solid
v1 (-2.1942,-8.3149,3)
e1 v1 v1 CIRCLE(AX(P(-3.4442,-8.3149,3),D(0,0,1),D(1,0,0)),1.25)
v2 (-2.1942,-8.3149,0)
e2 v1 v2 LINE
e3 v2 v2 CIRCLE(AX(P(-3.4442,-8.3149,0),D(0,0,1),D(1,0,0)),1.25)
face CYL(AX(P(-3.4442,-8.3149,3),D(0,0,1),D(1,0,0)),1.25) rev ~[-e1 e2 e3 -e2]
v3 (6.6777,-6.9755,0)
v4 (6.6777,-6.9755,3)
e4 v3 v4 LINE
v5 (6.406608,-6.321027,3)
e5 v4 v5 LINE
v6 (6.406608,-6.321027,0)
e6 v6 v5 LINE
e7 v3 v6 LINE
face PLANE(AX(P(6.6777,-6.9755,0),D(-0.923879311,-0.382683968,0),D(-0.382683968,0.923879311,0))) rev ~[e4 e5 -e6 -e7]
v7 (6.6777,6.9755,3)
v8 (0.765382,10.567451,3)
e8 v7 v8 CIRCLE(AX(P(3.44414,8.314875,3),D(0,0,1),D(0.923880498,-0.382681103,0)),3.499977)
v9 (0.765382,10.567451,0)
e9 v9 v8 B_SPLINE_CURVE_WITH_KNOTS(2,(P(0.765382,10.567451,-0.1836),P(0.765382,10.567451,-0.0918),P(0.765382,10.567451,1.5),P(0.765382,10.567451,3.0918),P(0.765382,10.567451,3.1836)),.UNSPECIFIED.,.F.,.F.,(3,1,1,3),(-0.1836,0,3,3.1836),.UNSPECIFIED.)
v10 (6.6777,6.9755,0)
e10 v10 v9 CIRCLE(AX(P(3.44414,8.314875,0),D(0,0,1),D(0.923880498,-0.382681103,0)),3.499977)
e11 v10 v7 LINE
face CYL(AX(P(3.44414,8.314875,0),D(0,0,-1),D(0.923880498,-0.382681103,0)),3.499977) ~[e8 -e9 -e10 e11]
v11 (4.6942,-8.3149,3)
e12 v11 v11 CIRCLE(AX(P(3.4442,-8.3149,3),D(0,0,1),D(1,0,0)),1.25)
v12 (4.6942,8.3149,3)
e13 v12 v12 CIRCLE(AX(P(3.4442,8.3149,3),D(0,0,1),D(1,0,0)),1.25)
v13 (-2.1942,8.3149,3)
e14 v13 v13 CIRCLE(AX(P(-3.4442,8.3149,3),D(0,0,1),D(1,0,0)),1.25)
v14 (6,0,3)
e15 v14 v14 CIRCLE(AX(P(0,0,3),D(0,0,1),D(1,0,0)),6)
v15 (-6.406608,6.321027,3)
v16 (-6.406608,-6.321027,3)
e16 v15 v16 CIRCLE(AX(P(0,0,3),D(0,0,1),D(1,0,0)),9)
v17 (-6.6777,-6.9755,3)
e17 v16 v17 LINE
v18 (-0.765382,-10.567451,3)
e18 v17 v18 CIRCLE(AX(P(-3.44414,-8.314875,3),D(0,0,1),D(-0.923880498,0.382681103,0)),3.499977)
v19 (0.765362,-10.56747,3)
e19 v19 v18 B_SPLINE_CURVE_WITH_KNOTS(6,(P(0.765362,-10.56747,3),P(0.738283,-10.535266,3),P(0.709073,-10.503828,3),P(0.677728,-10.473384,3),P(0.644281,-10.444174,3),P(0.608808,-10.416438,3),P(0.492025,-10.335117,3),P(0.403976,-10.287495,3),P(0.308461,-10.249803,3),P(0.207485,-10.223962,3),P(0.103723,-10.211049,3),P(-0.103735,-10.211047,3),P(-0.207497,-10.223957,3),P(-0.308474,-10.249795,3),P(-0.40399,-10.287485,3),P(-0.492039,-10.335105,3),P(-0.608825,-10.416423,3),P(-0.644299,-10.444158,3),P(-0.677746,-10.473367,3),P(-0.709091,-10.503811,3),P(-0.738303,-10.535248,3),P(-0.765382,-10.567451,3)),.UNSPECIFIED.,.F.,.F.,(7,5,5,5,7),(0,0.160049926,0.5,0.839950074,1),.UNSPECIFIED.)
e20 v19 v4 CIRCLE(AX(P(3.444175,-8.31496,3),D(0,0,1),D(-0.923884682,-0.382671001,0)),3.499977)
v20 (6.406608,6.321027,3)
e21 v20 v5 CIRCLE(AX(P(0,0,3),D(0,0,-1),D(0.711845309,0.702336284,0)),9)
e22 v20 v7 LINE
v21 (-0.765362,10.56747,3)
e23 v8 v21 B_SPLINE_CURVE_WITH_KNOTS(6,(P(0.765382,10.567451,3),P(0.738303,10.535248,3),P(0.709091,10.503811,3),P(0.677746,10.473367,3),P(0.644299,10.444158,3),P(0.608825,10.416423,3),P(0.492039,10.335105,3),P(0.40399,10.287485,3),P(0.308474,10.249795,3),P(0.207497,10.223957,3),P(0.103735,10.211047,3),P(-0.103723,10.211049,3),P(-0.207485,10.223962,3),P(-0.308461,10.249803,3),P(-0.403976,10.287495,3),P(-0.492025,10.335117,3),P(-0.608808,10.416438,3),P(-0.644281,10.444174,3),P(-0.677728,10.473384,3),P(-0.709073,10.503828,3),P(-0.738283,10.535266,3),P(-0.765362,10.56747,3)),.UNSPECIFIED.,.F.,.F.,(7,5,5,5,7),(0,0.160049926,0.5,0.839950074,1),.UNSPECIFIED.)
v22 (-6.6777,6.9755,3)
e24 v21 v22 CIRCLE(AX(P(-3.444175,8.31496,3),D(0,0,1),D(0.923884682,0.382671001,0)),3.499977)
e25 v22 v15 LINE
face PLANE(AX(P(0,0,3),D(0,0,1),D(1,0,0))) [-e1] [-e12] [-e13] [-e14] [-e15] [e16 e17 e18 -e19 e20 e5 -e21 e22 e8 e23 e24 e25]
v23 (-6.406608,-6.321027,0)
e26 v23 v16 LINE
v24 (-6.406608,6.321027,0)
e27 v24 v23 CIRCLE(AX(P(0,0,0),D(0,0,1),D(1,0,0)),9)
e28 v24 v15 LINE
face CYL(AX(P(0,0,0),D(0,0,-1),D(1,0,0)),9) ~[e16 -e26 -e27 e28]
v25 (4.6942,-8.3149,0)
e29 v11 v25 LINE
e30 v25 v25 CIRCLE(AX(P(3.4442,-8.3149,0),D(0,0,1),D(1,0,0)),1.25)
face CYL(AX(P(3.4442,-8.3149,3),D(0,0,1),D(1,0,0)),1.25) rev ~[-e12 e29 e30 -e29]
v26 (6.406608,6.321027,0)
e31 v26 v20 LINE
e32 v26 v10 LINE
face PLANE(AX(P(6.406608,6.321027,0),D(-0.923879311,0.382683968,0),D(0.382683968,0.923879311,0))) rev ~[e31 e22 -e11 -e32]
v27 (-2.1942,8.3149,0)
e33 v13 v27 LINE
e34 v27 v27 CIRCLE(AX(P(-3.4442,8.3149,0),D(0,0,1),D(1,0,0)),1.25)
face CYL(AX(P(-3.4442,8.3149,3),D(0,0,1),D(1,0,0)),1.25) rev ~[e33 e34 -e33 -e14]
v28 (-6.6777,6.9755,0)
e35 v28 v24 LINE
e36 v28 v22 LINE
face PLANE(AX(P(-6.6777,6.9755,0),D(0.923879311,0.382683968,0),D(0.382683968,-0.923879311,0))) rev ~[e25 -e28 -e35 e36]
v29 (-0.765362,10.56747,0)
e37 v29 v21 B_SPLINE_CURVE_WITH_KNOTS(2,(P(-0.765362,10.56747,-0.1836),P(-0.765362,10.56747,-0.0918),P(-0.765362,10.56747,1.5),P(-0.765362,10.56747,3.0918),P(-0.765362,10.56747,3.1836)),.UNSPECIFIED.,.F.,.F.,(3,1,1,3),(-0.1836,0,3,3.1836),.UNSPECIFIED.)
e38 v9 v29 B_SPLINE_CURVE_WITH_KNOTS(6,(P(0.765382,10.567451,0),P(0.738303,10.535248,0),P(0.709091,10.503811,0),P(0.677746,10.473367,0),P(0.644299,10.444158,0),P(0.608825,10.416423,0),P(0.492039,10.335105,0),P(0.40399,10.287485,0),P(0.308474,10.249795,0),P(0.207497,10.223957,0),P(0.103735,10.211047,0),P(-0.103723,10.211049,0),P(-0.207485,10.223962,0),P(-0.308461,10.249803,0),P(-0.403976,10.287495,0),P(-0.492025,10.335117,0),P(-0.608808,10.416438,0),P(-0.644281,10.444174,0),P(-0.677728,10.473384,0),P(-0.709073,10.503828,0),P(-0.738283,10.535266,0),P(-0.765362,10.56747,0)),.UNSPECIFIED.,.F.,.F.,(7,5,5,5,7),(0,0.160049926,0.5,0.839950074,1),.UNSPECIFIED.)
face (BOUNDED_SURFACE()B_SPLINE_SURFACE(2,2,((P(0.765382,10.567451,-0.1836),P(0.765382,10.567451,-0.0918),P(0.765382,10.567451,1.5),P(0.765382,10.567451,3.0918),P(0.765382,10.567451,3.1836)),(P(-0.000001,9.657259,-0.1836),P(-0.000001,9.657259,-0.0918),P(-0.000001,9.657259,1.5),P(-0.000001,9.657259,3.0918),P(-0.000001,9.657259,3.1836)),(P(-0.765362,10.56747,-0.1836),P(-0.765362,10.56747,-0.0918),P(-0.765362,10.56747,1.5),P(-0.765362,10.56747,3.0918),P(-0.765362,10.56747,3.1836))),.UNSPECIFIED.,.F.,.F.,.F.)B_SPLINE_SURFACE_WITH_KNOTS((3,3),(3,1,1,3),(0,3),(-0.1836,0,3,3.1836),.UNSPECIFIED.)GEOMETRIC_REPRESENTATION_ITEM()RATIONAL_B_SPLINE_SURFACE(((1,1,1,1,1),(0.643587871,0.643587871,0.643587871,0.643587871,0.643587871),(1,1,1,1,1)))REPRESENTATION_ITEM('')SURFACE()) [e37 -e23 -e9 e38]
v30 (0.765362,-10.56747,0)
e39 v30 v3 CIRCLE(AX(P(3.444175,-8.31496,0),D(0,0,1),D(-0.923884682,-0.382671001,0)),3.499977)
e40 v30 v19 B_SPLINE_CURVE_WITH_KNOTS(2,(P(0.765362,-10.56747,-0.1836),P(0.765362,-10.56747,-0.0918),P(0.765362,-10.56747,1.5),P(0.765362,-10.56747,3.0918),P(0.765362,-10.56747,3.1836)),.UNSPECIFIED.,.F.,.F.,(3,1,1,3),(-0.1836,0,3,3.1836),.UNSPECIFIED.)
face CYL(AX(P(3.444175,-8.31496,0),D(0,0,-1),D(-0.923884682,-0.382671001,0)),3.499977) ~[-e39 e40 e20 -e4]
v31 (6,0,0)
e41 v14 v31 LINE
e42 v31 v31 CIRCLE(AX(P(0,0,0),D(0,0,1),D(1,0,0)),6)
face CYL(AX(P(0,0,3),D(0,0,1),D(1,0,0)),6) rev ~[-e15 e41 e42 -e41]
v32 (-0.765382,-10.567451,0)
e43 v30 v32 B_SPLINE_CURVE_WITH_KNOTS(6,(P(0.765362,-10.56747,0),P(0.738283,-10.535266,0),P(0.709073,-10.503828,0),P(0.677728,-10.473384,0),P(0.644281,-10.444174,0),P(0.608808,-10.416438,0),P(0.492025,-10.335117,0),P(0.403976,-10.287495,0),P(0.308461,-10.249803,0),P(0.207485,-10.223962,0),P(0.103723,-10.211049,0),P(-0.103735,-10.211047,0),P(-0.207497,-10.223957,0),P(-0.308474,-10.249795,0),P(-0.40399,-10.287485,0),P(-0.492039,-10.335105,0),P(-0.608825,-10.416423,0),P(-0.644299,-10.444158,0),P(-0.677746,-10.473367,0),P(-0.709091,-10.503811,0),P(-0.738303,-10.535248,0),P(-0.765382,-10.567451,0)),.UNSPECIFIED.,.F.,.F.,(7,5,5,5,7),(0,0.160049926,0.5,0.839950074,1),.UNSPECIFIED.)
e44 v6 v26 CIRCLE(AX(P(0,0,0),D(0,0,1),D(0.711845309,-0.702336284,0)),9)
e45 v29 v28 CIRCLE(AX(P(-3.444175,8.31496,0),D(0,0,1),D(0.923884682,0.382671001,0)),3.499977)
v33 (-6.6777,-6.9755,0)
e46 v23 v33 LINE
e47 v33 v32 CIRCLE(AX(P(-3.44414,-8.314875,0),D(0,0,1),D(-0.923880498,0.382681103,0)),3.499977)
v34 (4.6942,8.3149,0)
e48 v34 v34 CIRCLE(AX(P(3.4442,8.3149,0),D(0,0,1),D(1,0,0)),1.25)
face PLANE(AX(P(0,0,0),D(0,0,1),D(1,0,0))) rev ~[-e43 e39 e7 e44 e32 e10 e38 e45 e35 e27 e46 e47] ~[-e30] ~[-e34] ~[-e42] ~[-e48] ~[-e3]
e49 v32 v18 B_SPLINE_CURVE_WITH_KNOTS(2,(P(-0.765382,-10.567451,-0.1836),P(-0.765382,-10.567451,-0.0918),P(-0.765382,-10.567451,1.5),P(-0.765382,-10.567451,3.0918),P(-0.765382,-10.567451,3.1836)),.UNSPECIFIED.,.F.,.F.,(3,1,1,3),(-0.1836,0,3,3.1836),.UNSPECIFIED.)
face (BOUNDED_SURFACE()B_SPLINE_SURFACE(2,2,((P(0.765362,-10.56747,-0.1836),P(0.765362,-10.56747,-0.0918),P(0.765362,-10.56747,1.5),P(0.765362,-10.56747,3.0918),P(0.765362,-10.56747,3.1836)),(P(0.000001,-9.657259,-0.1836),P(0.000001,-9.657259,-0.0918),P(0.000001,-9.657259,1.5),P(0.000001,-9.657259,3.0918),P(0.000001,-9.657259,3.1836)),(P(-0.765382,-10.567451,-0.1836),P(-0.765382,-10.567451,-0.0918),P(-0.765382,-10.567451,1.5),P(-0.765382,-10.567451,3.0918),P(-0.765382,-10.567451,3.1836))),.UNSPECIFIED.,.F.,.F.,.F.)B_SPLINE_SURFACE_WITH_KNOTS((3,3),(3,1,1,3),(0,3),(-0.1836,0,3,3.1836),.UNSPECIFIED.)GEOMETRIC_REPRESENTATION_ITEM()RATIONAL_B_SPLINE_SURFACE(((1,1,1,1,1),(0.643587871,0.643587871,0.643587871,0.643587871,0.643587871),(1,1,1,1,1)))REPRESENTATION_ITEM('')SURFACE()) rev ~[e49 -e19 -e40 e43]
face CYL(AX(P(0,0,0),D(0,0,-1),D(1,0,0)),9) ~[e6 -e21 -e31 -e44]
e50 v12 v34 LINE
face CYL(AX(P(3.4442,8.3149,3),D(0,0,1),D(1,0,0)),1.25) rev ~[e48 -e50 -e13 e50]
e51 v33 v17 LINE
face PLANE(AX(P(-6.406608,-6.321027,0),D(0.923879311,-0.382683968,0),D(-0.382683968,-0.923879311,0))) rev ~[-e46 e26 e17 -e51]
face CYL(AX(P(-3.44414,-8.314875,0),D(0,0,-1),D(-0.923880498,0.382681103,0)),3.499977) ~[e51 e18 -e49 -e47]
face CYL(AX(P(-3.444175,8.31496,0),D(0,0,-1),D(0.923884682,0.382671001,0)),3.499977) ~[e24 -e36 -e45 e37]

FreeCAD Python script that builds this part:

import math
import FreeCAD as App
import Part
import Sketcher

V = App.Vector
Q = App.Units.Quantity


def edges_at(feature, points):
    """Names of the edges that pass closest to the given points."""
    edges = feature.Shape.Edges
    near = lambda p: min(range(len(edges)), key=lambda i: edges[i].distToShape(Part.Vertex(*p))[0])
    return sorted({f"Edge{near(p) + 1}" for p in points})

doc = App.newDocument("Part")
body = doc.addObject("PartDesign::Body", "Body")

# Sketch on XY plane
sketch1 = doc.addObject("Sketcher::SketchObject", "Sketch")
body.addObject(sketch1)
sketch1.AttachmentSupport = (doc.XY_Plane, [""])
sketch1.MapMode = "FlatFace"
sketch1.addGeometry([
    Part.ArcOfCircle(Part.Circle(V(0, 0, 0), V(0, 0, 1), 9), math.radians(-45), math.radians(45)),  # 0
    Part.LineSegment(V(6.4, 6.3, 0), V(6.7, 7, 0)),  # 1
    Part.ArcOfCircle(Part.Circle(V(3.4, 8.3, 0), V(0, 0, 1), 3.5), math.radians(-23), math.radians(158)),  # 2
    Part.LineSegment(V(0.2, 9.7, 0), V(0, 9.1, 0)),  # 3
    Part.LineSegment(V(0, 9.1, 0), V(-0.2, 9.7, 0)),  # 4
    Part.ArcOfCircle(Part.Circle(V(-3.4, 8.3, 0), V(0, 0, 1), 3.5), math.radians(22), math.radians(203)),  # 5
    Part.LineSegment(V(-6.7, 7, 0), V(-6.4, 6.3, 0)),  # 6
    Part.ArcOfCircle(Part.Circle(V(0, 0, 0), V(0, 0, 1), 9), math.radians(135), math.radians(225)),  # 7
    Part.LineSegment(V(-6.4, -6.3, 0), V(-6.7, -7, 0)),  # 8
    Part.ArcOfCircle(Part.Circle(V(-3.4, -8.3, 0), V(0, 0, 1), 3.5), math.radians(157), math.radians(338)),  # 9
    Part.LineSegment(V(-0.2, -9.7, 0), V(0, -9.1, 0)),  # 10
    Part.LineSegment(V(0, -9.1, 0), V(0.2, -9.7, 0)),  # 11
    Part.ArcOfCircle(Part.Circle(V(3.4, -8.3, 0), V(0, 0, 1), 3.5), math.radians(-158), math.radians(23)),  # 12
    Part.LineSegment(V(6.7, -7, 0), V(6.4, -6.3, 0)),  # 13
], False)
sketch1.addConstraint([
    Sketcher.Constraint("Coincident", 0, 2, 1, 1),
    Sketcher.Constraint("Tangent", 1, 2, 2, 1),
    Sketcher.Constraint("Tangent", 2, 2, 3, 1),
    Sketcher.Constraint("Coincident", 3, 2, 4, 1),
    Sketcher.Constraint("Tangent", 4, 2, 5, 1),
    Sketcher.Constraint("Tangent", 5, 2, 6, 1),
    Sketcher.Constraint("Coincident", 6, 2, 7, 1),
    Sketcher.Constraint("Coincident", 7, 2, 8, 1),
    Sketcher.Constraint("Tangent", 8, 2, 9, 1),
    Sketcher.Constraint("Tangent", 9, 2, 10, 1),
    Sketcher.Constraint("Coincident", 10, 2, 11, 1),
    Sketcher.Constraint("Tangent", 11, 2, 12, 1),
    Sketcher.Constraint("Tangent", 12, 2, 13, 1),
    Sketcher.Constraint("Coincident", 13, 2, 0, 1),
    Sketcher.Constraint("Coincident", 0, 3, -1, 1),
    Sketcher.Constraint("Coincident", 7, 3, -1, 1),
    Sketcher.Constraint("Equal", 2, 5),
    Sketcher.Constraint("Equal", 0, 7),
    Sketcher.Constraint("Equal", 5, 9),
    Sketcher.Constraint("Equal", 9, 12),
    Sketcher.Constraint("Symmetric", 2, 3, 9, 3, -1, 1),
    Sketcher.Constraint("Symmetric", 5, 3, 12, 3, -1, 1),
    Sketcher.Constraint("Symmetric", 3, 2, 10, 2, -1, 1),
    Sketcher.Constraint("Symmetric", 2, 3, 5, 3, -2),
    Sketcher.Constraint("PointOnObject", 3, 2, -2),
    Sketcher.Constraint("Parallel", 1, 3),
    Sketcher.Constraint("Parallel", 4, 6),
    Sketcher.Constraint("Parallel", 3, 8),
    Sketcher.Constraint("Parallel", 11, 13),
    Sketcher.Constraint("Radius", 0, Q("9 mm")),
    Sketcher.Constraint("Radius", 2, Q("3.5 mm")),
    Sketcher.Constraint("Angle", 1, Q("67.5 deg")),
    Sketcher.Constraint("DistanceY", -1, 1, 2, 3, Q("8.315 mm")),
    Sketcher.Constraint("DistanceY", -1, 1, 0, 2, Q("6.321 mm")),
])
pad1 = doc.addObject("PartDesign::Pad", "Pad")
body.addObject(pad1)
pad1.Profile = sketch1
pad1.Length = 3

# Sketch on XY plane
sketch2 = doc.addObject("Sketcher::SketchObject", "Sketch001")
body.addObject(sketch2)
sketch2.AttachmentSupport = (doc.XY_Plane, [""])
sketch2.MapMode = "FlatFace"
sketch2.AttachmentOffset = App.Placement(V(0, 0, 3), App.Rotation())
sketch2.addGeometry([
    Part.Circle(V(-3.4, 8.3, 0), V(0, 0, 1), 1.2),  # 0
    Part.Circle(V(3.4, 8.3, 0), V(0, 0, 1), 1.2),  # 1
    Part.Circle(V(3.4, -8.3, 0), V(0, 0, 1), 1.2),  # 2
    Part.Circle(V(-3.4, -8.3, 0), V(0, 0, 1), 1.2),  # 3
    Part.Circle(V(0, 0, 0), V(0, 0, 1), 6),  # 4
], False)
sketch2.addConstraint([
    Sketcher.Constraint("Coincident", 4, 3, -1, 1),
    Sketcher.Constraint("Equal", 0, 1),
    Sketcher.Constraint("Equal", 1, 2),
    Sketcher.Constraint("Equal", 2, 3),
    Sketcher.Constraint("Symmetric", 0, 3, 2, 3, -1, 1),
    Sketcher.Constraint("Symmetric", 1, 3, 3, 3, -1, 1),
    Sketcher.Constraint("Symmetric", 0, 3, 1, 3, -2),
    Sketcher.Constraint("Diameter", 4, Q("12 mm")),
    Sketcher.Constraint("Diameter", 0, Q("2.5 mm")),
    Sketcher.Constraint("DistanceY", -1, 1, 0, 3, Q("8.315 mm")),
    Sketcher.Constraint("DistanceX", 0, 3, -1, 1, Q("3.4442 mm")),
])
pocket1 = doc.addObject("PartDesign::Pocket", "Pocket")
body.addObject(pocket1)
pocket1.Profile = sketch2
pocket1.Type = "ThroughAll"
doc.recompute()

fillet = doc.addObject("PartDesign::Fillet", "Fillet")
body.addObject(fillet)
fillet.Base = (pocket1, edges_at(pocket1, [(0, -9.146, 1.5), (0, 9.146, 1.5)]))
fillet.Radius = 1

doc.recompute()
